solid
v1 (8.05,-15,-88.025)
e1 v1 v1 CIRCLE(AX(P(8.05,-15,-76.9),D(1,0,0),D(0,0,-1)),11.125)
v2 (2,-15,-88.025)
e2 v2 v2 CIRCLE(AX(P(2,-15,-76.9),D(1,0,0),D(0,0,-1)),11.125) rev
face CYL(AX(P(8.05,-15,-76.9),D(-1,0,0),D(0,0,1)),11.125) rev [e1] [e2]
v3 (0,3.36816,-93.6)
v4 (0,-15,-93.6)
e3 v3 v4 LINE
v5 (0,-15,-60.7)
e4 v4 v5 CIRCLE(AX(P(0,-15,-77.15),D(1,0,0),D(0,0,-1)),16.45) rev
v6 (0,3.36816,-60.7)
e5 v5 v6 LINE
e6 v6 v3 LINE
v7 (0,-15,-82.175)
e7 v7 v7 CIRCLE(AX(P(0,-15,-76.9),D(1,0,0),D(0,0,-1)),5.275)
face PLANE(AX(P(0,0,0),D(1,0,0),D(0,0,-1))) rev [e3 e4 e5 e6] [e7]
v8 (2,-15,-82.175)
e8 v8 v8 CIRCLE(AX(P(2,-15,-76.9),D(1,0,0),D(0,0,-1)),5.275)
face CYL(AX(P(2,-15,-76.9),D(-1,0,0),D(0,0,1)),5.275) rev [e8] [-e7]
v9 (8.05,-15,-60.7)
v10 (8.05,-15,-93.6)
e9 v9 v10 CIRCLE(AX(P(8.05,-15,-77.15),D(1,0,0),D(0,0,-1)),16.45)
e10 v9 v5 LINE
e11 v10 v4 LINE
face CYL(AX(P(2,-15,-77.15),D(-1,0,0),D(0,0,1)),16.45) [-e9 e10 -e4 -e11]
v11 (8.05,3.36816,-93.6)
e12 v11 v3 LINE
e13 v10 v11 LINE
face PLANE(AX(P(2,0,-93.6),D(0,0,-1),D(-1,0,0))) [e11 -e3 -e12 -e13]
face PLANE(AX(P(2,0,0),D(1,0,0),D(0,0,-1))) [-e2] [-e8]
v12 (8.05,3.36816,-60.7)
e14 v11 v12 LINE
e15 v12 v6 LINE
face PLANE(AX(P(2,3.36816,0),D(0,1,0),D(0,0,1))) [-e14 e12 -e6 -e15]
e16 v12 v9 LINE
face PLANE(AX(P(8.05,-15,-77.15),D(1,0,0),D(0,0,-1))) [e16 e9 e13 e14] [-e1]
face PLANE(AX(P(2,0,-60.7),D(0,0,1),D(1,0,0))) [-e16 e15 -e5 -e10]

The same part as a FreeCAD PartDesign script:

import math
import FreeCAD as App
import Part
import Sketcher
Q = App.Units.Quantity

doc = App.newDocument("Part")
body = doc.addObject("PartDesign::Body", "Body")

sketch1 = body.newObject("Sketcher::SketchObject", "Sketch")
sketch1.AttachmentSupport = (doc.getObject("YZ_Plane"), [""])
sketch1.MapMode = "FlatFace"
sketch1.addGeometry([
    Part.LineSegment(App.Vector(3.36816, -60.7, 0), App.Vector(-15, -60.7, 0)),
    Part.ArcOfCircle(Part.Circle(App.Vector(-15, -77.15, 0), App.Vector(0, 0, 1), 16.45), math.radians(90), math.radians(270)),
    Part.LineSegment(App.Vector(-15, -93.6, 0), App.Vector(3.36816, -93.6, 0)),
    Part.LineSegment(App.Vector(3.36816, -93.6, 0), App.Vector(3.36816, -60.7, 0)),
    Part.Circle(App.Vector(-15, -76.9, 0), App.Vector(0, 0, 1), 5.275),
], False)
sketch1.addConstraint([
    Sketcher.Constraint("Tangent", 0, 2, 1, 1),
    Sketcher.Constraint("Tangent", 1, 2, 2, 1),
    Sketcher.Constraint("Coincident", 2, 2, 3, 1),
    Sketcher.Constraint("Coincident", 3, 2, 0, 1),
    Sketcher.Constraint("Horizontal", 0),
    Sketcher.Constraint("Horizontal", 2),
    Sketcher.Constraint("Vertical", 3),
    Sketcher.Constraint("Vertical", 1, 3, 4, 3),
    Sketcher.Constraint("Diameter", 4, Q("10.55 mm")),
    Sketcher.Constraint("Radius", 1, Q("16.45 mm")),
    Sketcher.Constraint("DistanceX", 1, 3, -1, 1, Q("15 mm")),
    Sketcher.Constraint("DistanceY", 4, 3, -1, 1, Q("76.9 mm")),
    Sketcher.Constraint("DistanceY", 0, 2, -1, 1, Q("60.7 mm")),
    Sketcher.Constraint("DistanceX", 0, 2, 0, 1, Q("18.36816 mm")),
])
pad1 = body.newObject("PartDesign::Pad", "Pad")
pad1.Profile = sketch1
pad1.Length = 2

sketch2 = body.newObject("Sketcher::SketchObject", "Sketch001")
sketch2.AttachmentSupport = (doc.getObject("YZ_Plane"), [""])
sketch2.MapMode = "FlatFace"
sketch2.AttachmentOffset = App.Placement(App.Vector(0, 0, 2), App.Rotation())
sketch2.addGeometry([
    Part.LineSegment(App.Vector(-15, -93.6, 0), App.Vector(3.36816, -93.6, 0)),
    Part.LineSegment(App.Vector(3.36816, -93.6, 0), App.Vector(3.36816, -60.7, 0)),
    Part.LineSegment(App.Vector(3.36816, -60.7, 0), App.Vector(-15, -60.7, 0)),
    Part.ArcOfCircle(Part.Circle(App.Vector(-15, -77.15, 0), App.Vector(0, 0, 1), 16.45), math.radians(90), math.radians(270)),
    Part.Circle(App.Vector(-15, -76.9, 0), App.Vector(0, 0, 1), 11.125),
], False)
sketch2.addConstraint([
    Sketcher.Constraint("Coincident", 0, 2, 1, 1),
    Sketcher.Constraint("Coincident", 1, 2, 2, 1),
    Sketcher.Constraint("Tangent", 2, 2, 3, 1),
    Sketcher.Constraint("Tangent", 3, 2, 0, 1),
    Sketcher.Constraint("Horizontal", 0),
    Sketcher.Constraint("Vertical", 1),
    Sketcher.Constraint("Horizontal", 2),
    Sketcher.Constraint("Vertical", 3, 3, 4, 3),
    Sketcher.Constraint("Diameter", 4, Q("22.25 mm")),
    Sketcher.Constraint("Radius", 3, Q("16.45 mm")),
    Sketcher.Constraint("DistanceX", 3, 3, -1, 1, Q("15 mm")),
    Sketcher.Constraint("DistanceY", 4, 3, -1, 1, Q("76.9 mm")),
    Sketcher.Constraint("DistanceY", 0, 2, -1, 1, Q("93.6 mm")),
    Sketcher.Constraint("DistanceX", 0, 1, 0, 2, Q("18.36816 mm")),
])
pad2 = body.newObject("PartDesign::Pad", "Pad001")
pad2.Profile = sketch2
pad2.Length = 6.05

doc.recompute()
